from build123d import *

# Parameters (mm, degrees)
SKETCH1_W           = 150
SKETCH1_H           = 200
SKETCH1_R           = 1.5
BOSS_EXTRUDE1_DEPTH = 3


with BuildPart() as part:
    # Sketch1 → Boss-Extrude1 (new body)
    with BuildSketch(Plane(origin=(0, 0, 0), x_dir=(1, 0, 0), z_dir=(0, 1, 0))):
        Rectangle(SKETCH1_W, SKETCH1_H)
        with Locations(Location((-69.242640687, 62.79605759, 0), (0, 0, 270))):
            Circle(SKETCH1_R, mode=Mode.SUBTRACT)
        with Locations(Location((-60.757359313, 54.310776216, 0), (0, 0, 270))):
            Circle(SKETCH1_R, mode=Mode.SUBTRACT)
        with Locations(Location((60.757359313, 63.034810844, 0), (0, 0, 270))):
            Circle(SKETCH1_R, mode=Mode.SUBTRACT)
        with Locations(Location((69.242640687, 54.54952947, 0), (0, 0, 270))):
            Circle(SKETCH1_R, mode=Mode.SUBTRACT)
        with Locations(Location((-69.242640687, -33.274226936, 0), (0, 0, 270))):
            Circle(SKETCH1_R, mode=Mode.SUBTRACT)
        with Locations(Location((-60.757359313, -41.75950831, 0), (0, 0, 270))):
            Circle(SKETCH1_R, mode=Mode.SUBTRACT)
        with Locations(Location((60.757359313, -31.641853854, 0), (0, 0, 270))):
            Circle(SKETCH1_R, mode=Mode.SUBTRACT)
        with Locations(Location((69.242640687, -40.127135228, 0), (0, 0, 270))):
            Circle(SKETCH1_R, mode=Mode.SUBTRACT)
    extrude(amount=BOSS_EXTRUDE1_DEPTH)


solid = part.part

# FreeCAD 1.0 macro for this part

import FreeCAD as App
import Part
import Sketcher

doc = App.newDocument("Part")
body = doc.addObject("PartDesign::Body", "Body")

# Sketch on XZ plane
sketch1 = body.newObject("Sketcher::SketchObject", "Sketch")
sketch1.AttachmentSupport = (doc.getObject("XZ_Plane"), [""])
sketch1.MapMode = "FlatFace"
sketch1.addGeometry(Part.LineSegment(App.Vector(-75, -100, 0), App.Vector(-75, 100, 0)), False)
sketch1.addGeometry(Part.LineSegment(App.Vector(-75, 100, 0), App.Vector(75, 100, 0)), False)
sketch1.addGeometry(Part.LineSegment(App.Vector(75, 100, 0), App.Vector(75, -100, 0)), False)
sketch1.addGeometry(Part.LineSegment(App.Vector(75, -100, 0), App.Vector(-75, -100, 0)), False)
sketch1.addGeometry(Part.Circle(App.Vector(-60.8, 41.8, 0), App.Vector(0, 0, 1), 1.5), False)
sketch1.addGeometry(Part.Circle(App.Vector(-69.2, 33.3, 0), App.Vector(0, 0, 1), 1.5), False)
sketch1.addGeometry(Part.Circle(App.Vector(69.2, 40.1, 0), App.Vector(0, 0, 1), 1.5), False)
sketch1.addGeometry(Part.Circle(App.Vector(60.8, 31.6, 0), App.Vector(0, 0, 1), 1.5), False)
sketch1.addGeometry(Part.Circle(App.Vector(-60.8, -54.3, 0), App.Vector(0, 0, 1), 1.5), False)
sketch1.addGeometry(Part.Circle(App.Vector(-69.2, -62.8, 0), App.Vector(0, 0, 1), 1.5), False)
sketch1.addGeometry(Part.Circle(App.Vector(69.2, -54.5, 0), App.Vector(0, 0, 1), 1.5), False)
sketch1.addGeometry(Part.Circle(App.Vector(60.8, -63, 0), App.Vector(0, 0, 1), 1.5), False)
sketch1.addConstraint(Sketcher.Constraint("Coincident", 0, 2, 1, 1))
sketch1.addConstraint(Sketcher.Constraint("Coincident", 1, 2, 2, 1))
sketch1.addConstraint(Sketcher.Constraint("Coincident", 2, 2, 3, 1))
sketch1.addConstraint(Sketcher.Constraint("Coincident", 3, 2, 0, 1))
sketch1.addConstraint(Sketcher.Constraint("Vertical", 0))
sketch1.addConstraint(Sketcher.Constraint("Horizontal", 1))
sketch1.addConstraint(Sketcher.Constraint("Vertical", 2))
sketch1.addConstraint(Sketcher.Constraint("Horizontal", 3))
sketch1.addConstraint(Sketcher.Constraint("Equal", 4, 5))
sketch1.addConstraint(Sketcher.Constraint("Equal", 5, 6))
sketch1.addConstraint(Sketcher.Constraint("Equal", 6, 7))
sketch1.addConstraint(Sketcher.Constraint("Equal", 7, 8))
sketch1.addConstraint(Sketcher.Constraint("Equal", 8, 9))
sketch1.addConstraint(Sketcher.Constraint("Equal", 9, 10))
sketch1.addConstraint(Sketcher.Constraint("Equal", 10, 11))
sketch1.addConstraint(Sketcher.Constraint("Symmetric", 0, 2, 2, 2, -1, 1))
sketch1.addConstraint(Sketcher.Constraint("Vertical", 4, 3, 8, 3))
sketch1.addConstraint(Sketcher.Constraint("Vertical", 5, 3, 9, 3))
sketch1.addConstraint(Sketcher.Constraint("Vertical", 6, 3, 10, 3))
sketch1.addConstraint(Sketcher.Constraint("Vertical", 7, 3, 11, 3))
sketch1.addConstraint(Sketcher.Constraint("Diameter", 4, 3.0))
sketch1.addConstraint(Sketcher.Constraint("DistanceX", 1, 1, 1, 2, 150.0))
sketch1.addConstraint(Sketcher.Constraint("DistanceY", 0, 1, 0, 2, 200.0))
sketch1.addConstraint(Sketcher.Constraint("DistanceX", 4, 3, 6, 3, 130.0))
sketch1.addConstraint(Sketcher.Constraint("DistanceX", 5, 3, 7, 3, 130.0))
sketch1.addConstraint(Sketcher.Constraint("DistanceX", 4, 3, -1, 1, 60.757359))
sketch1.addConstraint(Sketcher.Constraint("DistanceY", -1, 1, 4, 3, 41.759508))
sketch1.addConstraint(Sketcher.Constraint("DistanceX", 5, 3, -1, 1, 69.242641))
sketch1.addConstraint(Sketcher.Constraint("DistanceY", 10, 3, -1, 1, 54.549529))
sketch1.addConstraint(Sketcher.Constraint("DistanceY", 11, 3, -1, 1, 63.034811))
sketch1.addConstraint(Sketcher.Constraint("DistanceY", 5, 3, 4, 3, 8.485281))
sketch1.addConstraint(Sketcher.Constraint("DistanceY", 5, 3, 6, 3, 6.852908))
sketch1.addConstraint(Sketcher.Constraint("DistanceY", 7, 3, 6, 3, 8.485281))
sketch1.addConstraint(Sketcher.Constraint("DistanceY", 8, 3, 7, 3, 85.95263))
sketch1.addConstraint(Sketcher.Constraint("DistanceY", 9, 3, 8, 3, 8.485281))
pad1 = body.newObject("PartDesign::Pad", "Pad")
pad1.Profile = sketch1
pad1.Length = 3
pad1.Reversed = True

doc.recompute()
